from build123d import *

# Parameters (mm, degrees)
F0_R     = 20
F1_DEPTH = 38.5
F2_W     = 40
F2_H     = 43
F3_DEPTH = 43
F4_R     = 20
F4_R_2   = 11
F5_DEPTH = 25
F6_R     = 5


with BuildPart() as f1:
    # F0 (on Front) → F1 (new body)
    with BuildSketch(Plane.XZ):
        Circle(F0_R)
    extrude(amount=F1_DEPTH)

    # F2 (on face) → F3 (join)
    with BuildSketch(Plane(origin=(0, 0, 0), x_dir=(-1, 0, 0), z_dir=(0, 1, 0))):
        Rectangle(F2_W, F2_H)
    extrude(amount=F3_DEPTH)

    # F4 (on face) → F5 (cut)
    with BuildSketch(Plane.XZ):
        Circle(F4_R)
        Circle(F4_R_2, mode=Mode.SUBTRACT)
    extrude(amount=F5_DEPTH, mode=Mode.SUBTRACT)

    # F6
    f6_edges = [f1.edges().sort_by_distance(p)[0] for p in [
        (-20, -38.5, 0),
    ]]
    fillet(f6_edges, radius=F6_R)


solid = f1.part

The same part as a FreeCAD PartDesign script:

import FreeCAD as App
import Part
import Sketcher


def edges_at(feature, points):
    """Names of the edges that pass closest to the given points."""
    edges = feature.Shape.Edges
    near = lambda p: min(range(len(edges)), key=lambda i: edges[i].distToShape(Part.Vertex(*p))[0])
    return sorted({f"Edge{near(p) + 1}" for p in points})

doc = App.newDocument("Part")
body = doc.addObject("PartDesign::Body", "Body")

# Sketch on XZ plane
sketch1 = body.newObject("Sketcher::SketchObject", "Sketch")
sketch1.AttachmentSupport = (doc.getObject("XZ_Plane"), [""])
sketch1.MapMode = "FlatFace"
sketch1.addGeometry(Part.Circle(App.Vector(0, 0, 0), App.Vector(0, 0, 1), 20), False)
sketch1.addConstraint([
    Sketcher.Constraint("Coincident", 0, 3, -1, 1),
    Sketcher.Constraint("Diameter", 0, 40.0),
])
pad1 = body.newObject("PartDesign::Pad", "Pad")
pad1.Profile = sketch1
pad1.Length = 38.5

# Sketch on XZ plane
sketch2 = body.newObject("Sketcher::SketchObject", "Sketch001")
sketch2.AttachmentSupport = (doc.getObject("XZ_Plane"), [""])
sketch2.MapMode = "FlatFace"
sketch2.addGeometry([
    Part.LineSegment(App.Vector(20, 21.5, 0), App.Vector(20, -21.5, 0)),
    Part.LineSegment(App.Vector(20, -21.5, 0), App.Vector(-20, -21.5, 0)),
    Part.LineSegment(App.Vector(-20, -21.5, 0), App.Vector(-20, 21.5, 0)),
    Part.LineSegment(App.Vector(-20, 21.5, 0), App.Vector(20, 21.5, 0)),
], False)
sketch2.addConstraint([
    Sketcher.Constraint("Coincident", 0, 2, 1, 1),
    Sketcher.Constraint("Coincident", 1, 2, 2, 1),
    Sketcher.Constraint("Coincident", 2, 2, 3, 1),
    Sketcher.Constraint("Coincident", 3, 2, 0, 1),
    Sketcher.Constraint("Vertical", 0),
    Sketcher.Constraint("Horizontal", 1),
    Sketcher.Constraint("Vertical", 2),
    Sketcher.Constraint("Horizontal", 3),
    Sketcher.Constraint("Symmetric", 0, 2, 2, 2, -1, 1),
    Sketcher.Constraint("DistanceX", 1, 2, 1, 1, 40.0),
    Sketcher.Constraint("DistanceY", 0, 2, 0, 1, 43.0),
])
pad2 = body.newObject("PartDesign::Pad", "Pad001")
pad2.Profile = sketch2
pad2.Length = 43
pad2.Reversed = True

# Sketch on XZ plane
sketch3 = body.newObject("Sketcher::SketchObject", "Sketch002")
sketch3.AttachmentSupport = (doc.getObject("XZ_Plane"), [""])
sketch3.MapMode = "FlatFace"
sketch3.addGeometry([
    Part.Circle(App.Vector(0, 0, 0), App.Vector(0, 0, 1), 20),
    Part.Circle(App.Vector(0, 0, 0), App.Vector(0, 0, 1), 11),
], False)
sketch3.addConstraint([
    Sketcher.Constraint("Coincident", 0, 3, -1, 1),
    Sketcher.Constraint("Coincident", 1, 3, -1, 1),
    Sketcher.Constraint("Diameter", 0, 40.0),
    Sketcher.Constraint("Diameter", 1, 22.0),
])
pocket1 = body.newObject("PartDesign::Pocket", "Pocket")
pocket1.Profile = sketch3
pocket1.Length = 25
pocket1.Reversed = True
doc.recompute()

fillet = body.newObject("PartDesign::Fillet", "Fillet")
fillet.Base = (pocket1, edges_at(pocket1, [(-20, -38.5, 0)]))
fillet.Radius = 5

doc.recompute()
